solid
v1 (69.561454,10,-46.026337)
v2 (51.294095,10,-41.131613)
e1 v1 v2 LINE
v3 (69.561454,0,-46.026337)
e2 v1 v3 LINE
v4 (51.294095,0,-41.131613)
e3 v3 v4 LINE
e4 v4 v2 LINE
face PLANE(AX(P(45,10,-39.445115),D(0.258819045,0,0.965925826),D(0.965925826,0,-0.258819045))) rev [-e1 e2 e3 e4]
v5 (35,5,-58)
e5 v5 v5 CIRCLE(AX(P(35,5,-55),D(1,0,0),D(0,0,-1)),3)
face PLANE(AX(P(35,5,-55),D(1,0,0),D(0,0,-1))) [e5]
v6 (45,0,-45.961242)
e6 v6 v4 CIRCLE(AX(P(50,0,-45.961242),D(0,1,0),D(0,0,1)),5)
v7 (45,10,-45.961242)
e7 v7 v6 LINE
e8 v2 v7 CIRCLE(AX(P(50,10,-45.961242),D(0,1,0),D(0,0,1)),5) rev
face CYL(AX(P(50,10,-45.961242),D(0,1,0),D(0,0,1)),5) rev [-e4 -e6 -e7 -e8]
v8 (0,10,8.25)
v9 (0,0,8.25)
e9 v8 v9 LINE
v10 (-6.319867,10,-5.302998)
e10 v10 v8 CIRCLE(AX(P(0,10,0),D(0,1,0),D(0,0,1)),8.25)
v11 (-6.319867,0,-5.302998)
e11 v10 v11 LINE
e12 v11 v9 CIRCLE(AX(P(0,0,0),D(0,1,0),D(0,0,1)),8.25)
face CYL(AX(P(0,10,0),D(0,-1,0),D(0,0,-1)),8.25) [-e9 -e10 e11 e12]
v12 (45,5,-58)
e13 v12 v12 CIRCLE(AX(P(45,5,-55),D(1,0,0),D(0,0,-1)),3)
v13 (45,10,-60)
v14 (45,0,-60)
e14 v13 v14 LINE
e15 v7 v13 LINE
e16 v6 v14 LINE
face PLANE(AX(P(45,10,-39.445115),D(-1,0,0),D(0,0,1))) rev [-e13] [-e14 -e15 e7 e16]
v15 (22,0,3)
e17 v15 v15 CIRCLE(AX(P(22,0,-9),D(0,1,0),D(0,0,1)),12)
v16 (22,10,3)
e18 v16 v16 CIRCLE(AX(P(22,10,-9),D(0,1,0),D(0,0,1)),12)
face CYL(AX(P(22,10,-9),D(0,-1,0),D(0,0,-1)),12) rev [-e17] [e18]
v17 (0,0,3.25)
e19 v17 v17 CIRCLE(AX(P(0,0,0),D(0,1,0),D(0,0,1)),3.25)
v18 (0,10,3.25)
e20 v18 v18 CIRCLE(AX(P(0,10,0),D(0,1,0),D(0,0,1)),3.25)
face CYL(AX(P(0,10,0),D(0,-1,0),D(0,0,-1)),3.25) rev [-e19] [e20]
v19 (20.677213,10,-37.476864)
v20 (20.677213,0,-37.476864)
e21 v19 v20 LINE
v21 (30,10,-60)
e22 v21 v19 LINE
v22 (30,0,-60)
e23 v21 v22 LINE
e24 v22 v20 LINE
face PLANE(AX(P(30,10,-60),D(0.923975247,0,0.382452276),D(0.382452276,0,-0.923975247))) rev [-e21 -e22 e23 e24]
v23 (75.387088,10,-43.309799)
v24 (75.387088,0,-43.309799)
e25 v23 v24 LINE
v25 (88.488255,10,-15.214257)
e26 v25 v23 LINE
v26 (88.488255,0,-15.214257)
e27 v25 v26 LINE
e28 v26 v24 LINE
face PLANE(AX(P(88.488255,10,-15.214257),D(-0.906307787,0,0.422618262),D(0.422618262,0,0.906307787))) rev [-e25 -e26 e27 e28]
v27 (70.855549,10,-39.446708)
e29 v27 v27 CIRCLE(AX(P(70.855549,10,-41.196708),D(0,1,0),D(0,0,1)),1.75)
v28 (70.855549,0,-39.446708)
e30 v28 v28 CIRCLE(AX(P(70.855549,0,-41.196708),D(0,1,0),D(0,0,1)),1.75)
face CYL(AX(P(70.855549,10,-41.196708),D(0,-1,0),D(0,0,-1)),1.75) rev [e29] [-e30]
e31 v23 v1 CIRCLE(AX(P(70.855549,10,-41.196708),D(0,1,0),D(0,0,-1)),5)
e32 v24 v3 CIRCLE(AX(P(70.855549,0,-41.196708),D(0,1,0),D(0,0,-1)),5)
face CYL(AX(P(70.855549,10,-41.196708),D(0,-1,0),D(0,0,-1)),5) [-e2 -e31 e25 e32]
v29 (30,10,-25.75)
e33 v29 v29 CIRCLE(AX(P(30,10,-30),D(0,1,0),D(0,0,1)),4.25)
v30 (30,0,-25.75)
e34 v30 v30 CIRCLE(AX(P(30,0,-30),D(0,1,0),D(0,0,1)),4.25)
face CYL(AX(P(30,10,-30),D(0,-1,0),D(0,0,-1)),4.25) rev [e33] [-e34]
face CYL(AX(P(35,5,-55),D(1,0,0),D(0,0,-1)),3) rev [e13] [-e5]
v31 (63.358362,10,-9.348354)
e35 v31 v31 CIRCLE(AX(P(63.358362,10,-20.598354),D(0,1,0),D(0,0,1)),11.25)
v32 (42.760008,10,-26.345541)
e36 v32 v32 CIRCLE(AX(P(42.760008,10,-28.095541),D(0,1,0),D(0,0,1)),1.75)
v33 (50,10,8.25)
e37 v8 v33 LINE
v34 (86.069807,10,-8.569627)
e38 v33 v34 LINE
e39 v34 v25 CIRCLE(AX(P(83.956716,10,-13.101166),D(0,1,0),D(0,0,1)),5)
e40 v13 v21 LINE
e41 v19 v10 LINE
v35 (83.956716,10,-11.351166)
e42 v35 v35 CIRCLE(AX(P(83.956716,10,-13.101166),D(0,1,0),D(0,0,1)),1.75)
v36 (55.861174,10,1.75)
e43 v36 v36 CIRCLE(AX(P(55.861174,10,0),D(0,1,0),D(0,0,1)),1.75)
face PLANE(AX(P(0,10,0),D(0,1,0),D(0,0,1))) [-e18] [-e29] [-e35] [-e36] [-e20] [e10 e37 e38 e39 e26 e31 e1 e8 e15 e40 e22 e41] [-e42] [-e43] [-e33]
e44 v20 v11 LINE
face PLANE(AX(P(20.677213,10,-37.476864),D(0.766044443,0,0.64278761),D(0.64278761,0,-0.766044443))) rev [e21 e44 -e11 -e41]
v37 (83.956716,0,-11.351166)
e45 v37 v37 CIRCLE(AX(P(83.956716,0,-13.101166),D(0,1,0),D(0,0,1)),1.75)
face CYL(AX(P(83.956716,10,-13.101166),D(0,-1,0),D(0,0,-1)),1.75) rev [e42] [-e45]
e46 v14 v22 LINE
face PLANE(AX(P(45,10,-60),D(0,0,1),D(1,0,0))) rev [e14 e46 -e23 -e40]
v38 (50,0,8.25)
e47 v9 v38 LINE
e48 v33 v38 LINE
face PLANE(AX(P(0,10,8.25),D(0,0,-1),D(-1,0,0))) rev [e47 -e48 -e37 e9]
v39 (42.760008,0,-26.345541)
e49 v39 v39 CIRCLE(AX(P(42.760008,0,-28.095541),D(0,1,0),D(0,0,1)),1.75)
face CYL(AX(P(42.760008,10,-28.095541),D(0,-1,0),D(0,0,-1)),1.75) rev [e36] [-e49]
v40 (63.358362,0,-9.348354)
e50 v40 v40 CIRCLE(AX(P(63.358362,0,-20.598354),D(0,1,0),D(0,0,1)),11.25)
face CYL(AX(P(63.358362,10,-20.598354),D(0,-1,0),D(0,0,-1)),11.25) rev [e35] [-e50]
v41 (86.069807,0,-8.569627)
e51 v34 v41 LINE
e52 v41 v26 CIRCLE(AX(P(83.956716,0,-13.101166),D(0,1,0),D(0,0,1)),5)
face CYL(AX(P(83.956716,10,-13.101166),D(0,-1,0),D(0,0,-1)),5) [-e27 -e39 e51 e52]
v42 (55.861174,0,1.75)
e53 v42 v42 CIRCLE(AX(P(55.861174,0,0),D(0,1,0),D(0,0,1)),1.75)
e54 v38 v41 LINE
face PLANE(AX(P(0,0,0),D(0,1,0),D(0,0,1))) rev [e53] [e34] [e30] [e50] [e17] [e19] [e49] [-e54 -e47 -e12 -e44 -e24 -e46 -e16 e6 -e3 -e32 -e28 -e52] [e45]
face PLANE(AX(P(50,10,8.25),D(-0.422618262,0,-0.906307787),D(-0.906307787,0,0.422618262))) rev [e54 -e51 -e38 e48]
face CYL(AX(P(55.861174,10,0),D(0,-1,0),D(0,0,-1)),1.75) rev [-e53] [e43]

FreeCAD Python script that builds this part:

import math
import FreeCAD as App
import Part
import Sketcher
from FreeCAD import Vector
Q = App.Units.Quantity


def edges_at(feature, points):
    """Names of the edges that pass closest to the given points."""
    edges = feature.Shape.Edges
    near = lambda p: min(range(len(edges)), key=lambda i: edges[i].distToShape(Part.Vertex(*p))[0])
    return sorted({f"Edge{near(p) + 1}" for p in points})

doc = App.newDocument("Part")
body = doc.addObject("PartDesign::Body", "Body")

sketch1 = body.newObject("Sketcher::SketchObject", "Sketch")
sketch1.AttachmentSupport = (doc.getObject("XZ_Plane"), [""])
sketch1.MapMode = "FlatFace"
sketch1.addGeometry(Part.LineSegment(Vector(0, 8.2, 0), Vector(50, 8.2, 0)), False)
sketch1.addGeometry(Part.LineSegment(Vector(50, 8.2, 0), Vector(86.1, -8.6, 0)), False)
sketch1.addGeometry(Part.ArcOfCircle(Part.Circle(Vector(84, -13.1, 0), Vector(0, 0, 1), 5), math.radians(-25), math.radians(65)), False)
sketch1.addGeometry(Part.LineSegment(Vector(88.5, -15.2, 0), Vector(75.4, -43.3, 0)), False)
sketch1.addGeometry(Part.ArcOfCircle(Part.Circle(Vector(70.9, -41.2, 0), Vector(0, 0, 1), 5), math.radians(-105), math.radians(-25)), False)
sketch1.addGeometry(Part.LineSegment(Vector(69.6, -46, 0), Vector(45, -39.4, 0)), False)
sketch1.addGeometry(Part.LineSegment(Vector(45, -39.4, 0), Vector(45, -60, 0)), False)
sketch1.addGeometry(Part.LineSegment(Vector(45, -60, 0), Vector(30, -60, 0)), False)
sketch1.addGeometry(Part.LineSegment(Vector(30, -60, 0), Vector(20.7, -37.5, 0)), False)
sketch1.addGeometry(Part.LineSegment(Vector(20.7, -37.5, 0), Vector(-6.3, -5.3, 0)), False)
sketch1.addGeometry(Part.ArcOfCircle(Part.Circle(Vector(0, 0, 0), Vector(0, 0, 1), 8.2), math.radians(90), math.radians(220)), False)
sketch1.addGeometry(Part.Circle(Vector(0, 0, 0), Vector(0, 0, 1), 3.2), False)
sketch1.addGeometry(Part.Circle(Vector(22, -9, 0), Vector(0, 0, 1), 12), False)
sketch1.addGeometry(Part.Circle(Vector(55.9, 0, 0), Vector(0, 0, 1), 1.8), False)
sketch1.addGeometry(Part.Circle(Vector(84, -13.1, 0), Vector(0, 0, 1), 1.8), False)
sketch1.addGeometry(Part.Circle(Vector(30, -30, 0), Vector(0, 0, 1), 4.2), False)
sketch1.addGeometry(Part.Circle(Vector(63.4, -20.6, 0), Vector(0, 0, 1), 11.2), False)
sketch1.addGeometry(Part.Circle(Vector(42.8, -28.1, 0), Vector(0, 0, 1), 1.8), False)
sketch1.addGeometry(Part.Circle(Vector(70.9, -41.2, 0), Vector(0, 0, 1), 1.8), False)
sketch1.addConstraint(Sketcher.Constraint("Coincident", 0, 2, 1, 1))
sketch1.addConstraint(Sketcher.Constraint("Tangent", 1, 2, 2, 2))
sketch1.addConstraint(Sketcher.Constraint("Tangent", 2, 1, 3, 1))
sketch1.addConstraint(Sketcher.Constraint("Tangent", 3, 2, 4, 2))
sketch1.addConstraint(Sketcher.Constraint("Tangent", 4, 1, 5, 1))
sketch1.addConstraint(Sketcher.Constraint("Coincident", 5, 2, 6, 1))
sketch1.addConstraint(Sketcher.Constraint("Coincident", 6, 2, 7, 1))
sketch1.addConstraint(Sketcher.Constraint("Coincident", 7, 2, 8, 1))
sketch1.addConstraint(Sketcher.Constraint("Coincident", 8, 2, 9, 1))
sketch1.addConstraint(Sketcher.Constraint("Tangent", 9, 2, 10, 2))
sketch1.addConstraint(Sketcher.Constraint("Tangent", 10, 1, 0, 1))
sketch1.addConstraint(Sketcher.Constraint("Horizontal", 0))
sketch1.addConstraint(Sketcher.Constraint("Vertical", 6))
sketch1.addConstraint(Sketcher.Constraint("Horizontal", 7))
sketch1.addConstraint(Sketcher.Constraint("Coincident", 10, 3, -1, 1))
sketch1.addConstraint(Sketcher.Constraint("Coincident", 11, 3, -1, 1))
sketch1.addConstraint(Sketcher.Constraint("Coincident", 14, 3, 2, 3))
sketch1.addConstraint(Sketcher.Constraint("Coincident", 18, 3, 4, 3))
sketch1.addConstraint(Sketcher.Constraint("Equal", 2, 4))
sketch1.addConstraint(Sketcher.Constraint("Equal", 13, 14))
sketch1.addConstraint(Sketcher.Constraint("Equal", 14, 17))
sketch1.addConstraint(Sketcher.Constraint("Equal", 17, 18))
sketch1.addConstraint(Sketcher.Constraint("PointOnObject", 13, 3, -1))
sketch1.addConstraint(Sketcher.Constraint("Perpendicular", 1, 3))
sketch1.addConstraint(Sketcher.Constraint("Vertical", 15, 3, 7, 2))
sketch1.addConstraint(Sketcher.Constraint("Diameter", 12, Q("24 mm")))
sketch1.addConstraint(Sketcher.Constraint("Radius", 2, Q("5 mm")))
sketch1.addConstraint(Sketcher.Constraint("Diameter", 11, Q("6.5 mm")))
sketch1.addConstraint(Sketcher.Constraint("Diameter", 13, Q("3.5 mm")))
sketch1.addConstraint(Sketcher.Constraint("Diameter", 15, Q("8.5 mm")))
sketch1.addConstraint(Sketcher.Constraint("Diameter", 16, Q("22.5 mm")))
sketch1.addConstraint(Sketcher.Constraint("DistanceX", 0, 1, 0, 2, Q("50 mm")))
sketch1.addConstraint(Sketcher.Constraint("DistanceX", 7, 2, 7, 1, Q("15 mm")))
sketch1.addConstraint(Sketcher.Constraint("Angle", 1, Q("-25 deg")))
sketch1.addConstraint(Sketcher.Constraint("Angle", 5, Q("165 deg")))
sketch1.addConstraint(Sketcher.Constraint("Angle", 9, Q("130 deg")))
sketch1.addConstraint(Sketcher.Constraint("Radius", 10, Q("8.25 mm")))
sketch1.addConstraint(Sketcher.Constraint("Distance", 3, Q("31 mm")))
sketch1.addConstraint(Sketcher.Constraint("Distance", 9, Q("42 mm")))
sketch1.addConstraint(Sketcher.Constraint("DistanceX", -1, 1, 12, 3, Q("22 mm")))
sketch1.addConstraint(Sketcher.Constraint("DistanceY", 12, 3, -1, 1, Q("9 mm")))
sketch1.addConstraint(Sketcher.Constraint("DistanceX", -1, 1, 15, 3, Q("30 mm")))
sketch1.addConstraint(Sketcher.Constraint("DistanceY", 15, 3, -1, 1, Q("30 mm")))
sketch1.addConstraint(Sketcher.Constraint("DistanceY", 6, 2, -1, 1, Q("60 mm")))
sketch1.addConstraint(Sketcher.Constraint("DistanceY", 3, 2, -1, 1, Q("43.309799 mm")))
sketch1.addConstraint(Sketcher.Constraint("DistanceX", -1, 1, 16, 3, Q("63.358362 mm")))
sketch1.addConstraint(Sketcher.Constraint("DistanceX", -1, 1, 17, 3, Q("42.760008 mm")))
sketch1.addConstraint(Sketcher.Constraint("DistanceY", 17, 3, -1, 1, Q("28.095541 mm")))
sketch1.addConstraint(Sketcher.Constraint("DistanceX", 13, 3, 2, 3, Q("28.095541 mm")))
sketch1.addConstraint(Sketcher.Constraint("DistanceY", 16, 3, -1, 1, Q("20.598354 mm")))
pad1 = body.newObject("PartDesign::Pad", "Pad")
pad1.Profile = sketch1
pad1.Length = 10
pad1.Reversed = True
doc.recompute()

fillet = body.newObject("PartDesign::Fillet", "Fillet")
fillet.Base = (pad1, edges_at(pad1, [(45, 5, -39.445)]))
fillet.Radius = 5

sketch2 = body.newObject("Sketcher::SketchObject", "Sketch001")
sketch2.AttachmentSupport = (doc.getObject("YZ_Plane"), [""])
sketch2.MapMode = "FlatFace"
sketch2.AttachmentOffset = App.Placement(Vector(0, 0, 45), App.Rotation())
sketch2.addGeometry(Part.Circle(Vector(5, -55, 0), Vector(0, 0, 1), 3), False)
sketch2.addConstraint(Sketcher.Constraint("Diameter", 0, Q("6 mm")))
sketch2.addConstraint(Sketcher.Constraint("DistanceX", -1, 1, 0, 3, Q("5 mm")))
sketch2.addConstraint(Sketcher.Constraint("DistanceY", 0, 3, -1, 1, Q("55 mm")))
pocket1 = body.newObject("PartDesign::Pocket", "Pocket")
pocket1.Profile = sketch2
pocket1.Length = 10

doc.recompute()
